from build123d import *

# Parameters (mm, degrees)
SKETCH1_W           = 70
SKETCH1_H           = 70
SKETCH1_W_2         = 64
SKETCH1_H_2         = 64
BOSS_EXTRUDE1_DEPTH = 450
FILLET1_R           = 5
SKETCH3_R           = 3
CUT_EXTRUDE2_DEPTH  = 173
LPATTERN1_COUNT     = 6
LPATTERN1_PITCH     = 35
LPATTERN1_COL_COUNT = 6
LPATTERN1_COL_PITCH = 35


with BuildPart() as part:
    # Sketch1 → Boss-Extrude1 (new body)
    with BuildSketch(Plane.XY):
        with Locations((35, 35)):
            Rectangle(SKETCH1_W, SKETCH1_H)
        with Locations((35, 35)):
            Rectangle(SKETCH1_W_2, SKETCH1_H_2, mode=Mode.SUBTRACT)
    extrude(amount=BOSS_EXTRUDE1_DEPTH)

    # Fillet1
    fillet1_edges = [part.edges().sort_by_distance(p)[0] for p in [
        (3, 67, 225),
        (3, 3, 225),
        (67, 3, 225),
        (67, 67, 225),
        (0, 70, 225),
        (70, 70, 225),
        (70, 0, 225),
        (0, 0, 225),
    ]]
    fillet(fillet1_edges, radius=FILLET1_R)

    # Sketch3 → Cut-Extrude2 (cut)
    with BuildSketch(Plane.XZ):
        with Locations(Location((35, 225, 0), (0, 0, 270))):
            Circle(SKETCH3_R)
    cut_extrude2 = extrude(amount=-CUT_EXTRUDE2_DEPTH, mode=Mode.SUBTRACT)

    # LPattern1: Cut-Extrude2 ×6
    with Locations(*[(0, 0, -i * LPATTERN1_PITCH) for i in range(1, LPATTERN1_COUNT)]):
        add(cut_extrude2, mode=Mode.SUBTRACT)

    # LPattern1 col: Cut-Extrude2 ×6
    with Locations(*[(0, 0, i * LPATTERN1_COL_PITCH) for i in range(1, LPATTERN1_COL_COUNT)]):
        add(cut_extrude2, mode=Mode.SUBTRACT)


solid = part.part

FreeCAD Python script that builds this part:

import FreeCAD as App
import Part
import Sketcher

V = App.Vector
Q = App.Units.Quantity


def edges_at(feature, points):
    """Names of the edges that pass closest to the given points."""
    edges = feature.Shape.Edges
    near = lambda p: min(range(len(edges)), key=lambda i: edges[i].distToShape(Part.Vertex(*p))[0])
    return sorted({f"Edge{near(p) + 1}" for p in points})


def add_polygon(sketch, points):
    """Adds a closed chain of lines whose ends are joined by coincident constraints."""
    first, n = sketch.GeometryCount, len(points)
    for a, b in zip(points, points[1:] + points[:1]):
        sketch.addGeometry(Part.LineSegment(App.Vector(*a, 0), App.Vector(*b, 0)), False)
    for i in range(n):
        sketch.addConstraint(Sketcher.Constraint("Coincident", first + i, 2, first + (i + 1) % n, 1))

doc = App.newDocument("Part")
body = doc.addObject("PartDesign::Body", "Body")

# Sketch on XY plane
sketch1 = doc.addObject("Sketcher::SketchObject", "Sketch")
body.addObject(sketch1)
sketch1.AttachmentSupport = (doc.XY_Plane, [""])
sketch1.MapMode = "FlatFace"
add_polygon(sketch1, [(0, 70), (0, 0), (70, 0), (70, 70)])  # lines 0-3
add_polygon(sketch1, [(67, 3), (3, 3), (3, 67), (67, 67)])  # lines 4-7
sketch1.addConstraint(Sketcher.Constraint("Vertical", 0))
sketch1.addConstraint(Sketcher.Constraint("Horizontal", 1))
sketch1.addConstraint(Sketcher.Constraint("Vertical", 2))
sketch1.addConstraint(Sketcher.Constraint("Horizontal", 3))
sketch1.addConstraint(Sketcher.Constraint("Horizontal", 4))
sketch1.addConstraint(Sketcher.Constraint("Vertical", 5))
sketch1.addConstraint(Sketcher.Constraint("Horizontal", 6))
sketch1.addConstraint(Sketcher.Constraint("Vertical", 7))
sketch1.addConstraint(Sketcher.Constraint("Coincident", 0, 2, -1, 1))
sketch1.addConstraint(Sketcher.Constraint("Equal", 3, 0))
sketch1.addConstraint(Sketcher.Constraint("Equal", 6, 5))
sketch1.addConstraint(Sketcher.Constraint("DistanceX", 1, 1, 1, 2, Q("70 mm")))
sketch1.addConstraint(Sketcher.Constraint("DistanceX", 4, 2, 4, 1, Q("64 mm")))
sketch1.addConstraint(Sketcher.Constraint("DistanceX", -1, 1, 4, 2, Q("3 mm")))
sketch1.addConstraint(Sketcher.Constraint("DistanceY", -1, 1, 4, 2, Q("3 mm")))
pad1 = doc.addObject("PartDesign::Pad", "Pad")
body.addObject(pad1)
pad1.Profile = sketch1
pad1.Length = 450
doc.recompute()

fillet = doc.addObject("PartDesign::Fillet", "Fillet")
body.addObject(fillet)
fillet.Base = (pad1, edges_at(pad1, [
    (3, 67, 225),
    (3, 3, 225),
    (67, 3, 225),
    (67, 67, 225),
    (0, 70, 225),
    (70, 70, 225),
    (70, 0, 225),
    (0, 0, 225),
]))
fillet.Radius = 5

# Sketch on XZ plane
sketch2 = doc.addObject("Sketcher::SketchObject", "Sketch001")
body.addObject(sketch2)
sketch2.AttachmentSupport = (doc.XZ_Plane, [""])
sketch2.MapMode = "FlatFace"
sketch2.addGeometry(Part.Circle(V(35, 225, 0), V(0, 0, 1), 3), False)
sketch2.addConstraint(Sketcher.Constraint("Diameter", 0, Q("6 mm")))
sketch2.addConstraint(Sketcher.Constraint("DistanceX", -1, 1, 0, 3, Q("35 mm")))
sketch2.addConstraint(Sketcher.Constraint("DistanceY", -1, 1, 0, 3, Q("225 mm")))
pocket1 = doc.addObject("PartDesign::Pocket", "Pocket")
body.addObject(pocket1)
pocket1.Profile = sketch2
pocket1.Length = 173
doc.recompute()

linearpattern = doc.addObject("PartDesign::LinearPattern", "LinearPattern")
body.addObject(linearpattern)
linearpattern.Originals = [pocket1]
linearpattern.Direction = (doc.Z_Axis, [""])
linearpattern.Mode = "offset"
linearpattern.Offset = 35
linearpattern.Occurrences = 6
linearpattern.Reversed = True
body.Tip = linearpattern
doc.recompute()

linearpattern2 = doc.addObject("PartDesign::LinearPattern", "LinearPattern001")
body.addObject(linearpattern2)
linearpattern2.Originals = [pocket1]
linearpattern2.Direction = (doc.Z_Axis, [""])
linearpattern2.Mode = "offset"
linearpattern2.Offset = 35
linearpattern2.Occurrences = 6
body.Tip = linearpattern2

doc.recompute()
